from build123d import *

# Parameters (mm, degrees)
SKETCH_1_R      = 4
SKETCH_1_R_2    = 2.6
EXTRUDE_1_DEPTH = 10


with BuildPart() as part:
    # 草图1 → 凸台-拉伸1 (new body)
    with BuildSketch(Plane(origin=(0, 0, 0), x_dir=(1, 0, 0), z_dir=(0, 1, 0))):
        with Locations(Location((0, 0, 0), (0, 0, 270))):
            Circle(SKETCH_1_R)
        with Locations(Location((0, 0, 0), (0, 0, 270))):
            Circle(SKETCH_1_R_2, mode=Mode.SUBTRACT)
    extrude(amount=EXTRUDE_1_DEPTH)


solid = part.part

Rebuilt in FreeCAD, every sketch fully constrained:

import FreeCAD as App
import Part
import Sketcher

V = App.Vector
Q = App.Units.Quantity

doc = App.newDocument("Part")
params = doc.addObject("Spreadsheet::Sheet", "Params")
for row, (alias, value) in enumerate([
    ("sketch1_diameter", "8 mm"),
    ("sketch1_diameter2", "5.2 mm"),
    ("pad1_length", "10 mm"),
], start=1):
    params.set(f"A{row}", alias)
    params.set(f"B{row}", "=" + value)
    params.setAlias(f"B{row}", alias)

body = doc.addObject("PartDesign::Body", "Body")

# Sketch on XZ plane
sketch1 = body.newObject("Sketcher::SketchObject", "Sketch")
sketch1.AttachmentSupport = (doc.getObject("XZ_Plane"), [""])
sketch1.MapMode = "FlatFace"
sketch1.addGeometry([
    Part.Circle(V(0, 0, 0), V(0, 0, 1), 4),
    Part.Circle(V(0, 0, 0), V(0, 0, 1), 2.6),
], False)
sketch1.addConstraint([
    Sketcher.Constraint("Coincident", 0, 3, -1, 1),
    Sketcher.Constraint("Coincident", 1, 3, -1, 1),
    Sketcher.Constraint("Diameter", 0, Q("8 mm")),
    Sketcher.Constraint("Diameter", 1, Q("5.2 mm")),
])
sketch1.setExpression("Constraints[2]", "Params.sketch1_diameter")
sketch1.setExpression("Constraints[3]", "Params.sketch1_diameter2")
pad1 = body.newObject("PartDesign::Pad", "Pad")
pad1.Profile = sketch1
pad1.setExpression("Length", "Params.pad1_length")
pad1.Reversed = True

doc.recompute()
